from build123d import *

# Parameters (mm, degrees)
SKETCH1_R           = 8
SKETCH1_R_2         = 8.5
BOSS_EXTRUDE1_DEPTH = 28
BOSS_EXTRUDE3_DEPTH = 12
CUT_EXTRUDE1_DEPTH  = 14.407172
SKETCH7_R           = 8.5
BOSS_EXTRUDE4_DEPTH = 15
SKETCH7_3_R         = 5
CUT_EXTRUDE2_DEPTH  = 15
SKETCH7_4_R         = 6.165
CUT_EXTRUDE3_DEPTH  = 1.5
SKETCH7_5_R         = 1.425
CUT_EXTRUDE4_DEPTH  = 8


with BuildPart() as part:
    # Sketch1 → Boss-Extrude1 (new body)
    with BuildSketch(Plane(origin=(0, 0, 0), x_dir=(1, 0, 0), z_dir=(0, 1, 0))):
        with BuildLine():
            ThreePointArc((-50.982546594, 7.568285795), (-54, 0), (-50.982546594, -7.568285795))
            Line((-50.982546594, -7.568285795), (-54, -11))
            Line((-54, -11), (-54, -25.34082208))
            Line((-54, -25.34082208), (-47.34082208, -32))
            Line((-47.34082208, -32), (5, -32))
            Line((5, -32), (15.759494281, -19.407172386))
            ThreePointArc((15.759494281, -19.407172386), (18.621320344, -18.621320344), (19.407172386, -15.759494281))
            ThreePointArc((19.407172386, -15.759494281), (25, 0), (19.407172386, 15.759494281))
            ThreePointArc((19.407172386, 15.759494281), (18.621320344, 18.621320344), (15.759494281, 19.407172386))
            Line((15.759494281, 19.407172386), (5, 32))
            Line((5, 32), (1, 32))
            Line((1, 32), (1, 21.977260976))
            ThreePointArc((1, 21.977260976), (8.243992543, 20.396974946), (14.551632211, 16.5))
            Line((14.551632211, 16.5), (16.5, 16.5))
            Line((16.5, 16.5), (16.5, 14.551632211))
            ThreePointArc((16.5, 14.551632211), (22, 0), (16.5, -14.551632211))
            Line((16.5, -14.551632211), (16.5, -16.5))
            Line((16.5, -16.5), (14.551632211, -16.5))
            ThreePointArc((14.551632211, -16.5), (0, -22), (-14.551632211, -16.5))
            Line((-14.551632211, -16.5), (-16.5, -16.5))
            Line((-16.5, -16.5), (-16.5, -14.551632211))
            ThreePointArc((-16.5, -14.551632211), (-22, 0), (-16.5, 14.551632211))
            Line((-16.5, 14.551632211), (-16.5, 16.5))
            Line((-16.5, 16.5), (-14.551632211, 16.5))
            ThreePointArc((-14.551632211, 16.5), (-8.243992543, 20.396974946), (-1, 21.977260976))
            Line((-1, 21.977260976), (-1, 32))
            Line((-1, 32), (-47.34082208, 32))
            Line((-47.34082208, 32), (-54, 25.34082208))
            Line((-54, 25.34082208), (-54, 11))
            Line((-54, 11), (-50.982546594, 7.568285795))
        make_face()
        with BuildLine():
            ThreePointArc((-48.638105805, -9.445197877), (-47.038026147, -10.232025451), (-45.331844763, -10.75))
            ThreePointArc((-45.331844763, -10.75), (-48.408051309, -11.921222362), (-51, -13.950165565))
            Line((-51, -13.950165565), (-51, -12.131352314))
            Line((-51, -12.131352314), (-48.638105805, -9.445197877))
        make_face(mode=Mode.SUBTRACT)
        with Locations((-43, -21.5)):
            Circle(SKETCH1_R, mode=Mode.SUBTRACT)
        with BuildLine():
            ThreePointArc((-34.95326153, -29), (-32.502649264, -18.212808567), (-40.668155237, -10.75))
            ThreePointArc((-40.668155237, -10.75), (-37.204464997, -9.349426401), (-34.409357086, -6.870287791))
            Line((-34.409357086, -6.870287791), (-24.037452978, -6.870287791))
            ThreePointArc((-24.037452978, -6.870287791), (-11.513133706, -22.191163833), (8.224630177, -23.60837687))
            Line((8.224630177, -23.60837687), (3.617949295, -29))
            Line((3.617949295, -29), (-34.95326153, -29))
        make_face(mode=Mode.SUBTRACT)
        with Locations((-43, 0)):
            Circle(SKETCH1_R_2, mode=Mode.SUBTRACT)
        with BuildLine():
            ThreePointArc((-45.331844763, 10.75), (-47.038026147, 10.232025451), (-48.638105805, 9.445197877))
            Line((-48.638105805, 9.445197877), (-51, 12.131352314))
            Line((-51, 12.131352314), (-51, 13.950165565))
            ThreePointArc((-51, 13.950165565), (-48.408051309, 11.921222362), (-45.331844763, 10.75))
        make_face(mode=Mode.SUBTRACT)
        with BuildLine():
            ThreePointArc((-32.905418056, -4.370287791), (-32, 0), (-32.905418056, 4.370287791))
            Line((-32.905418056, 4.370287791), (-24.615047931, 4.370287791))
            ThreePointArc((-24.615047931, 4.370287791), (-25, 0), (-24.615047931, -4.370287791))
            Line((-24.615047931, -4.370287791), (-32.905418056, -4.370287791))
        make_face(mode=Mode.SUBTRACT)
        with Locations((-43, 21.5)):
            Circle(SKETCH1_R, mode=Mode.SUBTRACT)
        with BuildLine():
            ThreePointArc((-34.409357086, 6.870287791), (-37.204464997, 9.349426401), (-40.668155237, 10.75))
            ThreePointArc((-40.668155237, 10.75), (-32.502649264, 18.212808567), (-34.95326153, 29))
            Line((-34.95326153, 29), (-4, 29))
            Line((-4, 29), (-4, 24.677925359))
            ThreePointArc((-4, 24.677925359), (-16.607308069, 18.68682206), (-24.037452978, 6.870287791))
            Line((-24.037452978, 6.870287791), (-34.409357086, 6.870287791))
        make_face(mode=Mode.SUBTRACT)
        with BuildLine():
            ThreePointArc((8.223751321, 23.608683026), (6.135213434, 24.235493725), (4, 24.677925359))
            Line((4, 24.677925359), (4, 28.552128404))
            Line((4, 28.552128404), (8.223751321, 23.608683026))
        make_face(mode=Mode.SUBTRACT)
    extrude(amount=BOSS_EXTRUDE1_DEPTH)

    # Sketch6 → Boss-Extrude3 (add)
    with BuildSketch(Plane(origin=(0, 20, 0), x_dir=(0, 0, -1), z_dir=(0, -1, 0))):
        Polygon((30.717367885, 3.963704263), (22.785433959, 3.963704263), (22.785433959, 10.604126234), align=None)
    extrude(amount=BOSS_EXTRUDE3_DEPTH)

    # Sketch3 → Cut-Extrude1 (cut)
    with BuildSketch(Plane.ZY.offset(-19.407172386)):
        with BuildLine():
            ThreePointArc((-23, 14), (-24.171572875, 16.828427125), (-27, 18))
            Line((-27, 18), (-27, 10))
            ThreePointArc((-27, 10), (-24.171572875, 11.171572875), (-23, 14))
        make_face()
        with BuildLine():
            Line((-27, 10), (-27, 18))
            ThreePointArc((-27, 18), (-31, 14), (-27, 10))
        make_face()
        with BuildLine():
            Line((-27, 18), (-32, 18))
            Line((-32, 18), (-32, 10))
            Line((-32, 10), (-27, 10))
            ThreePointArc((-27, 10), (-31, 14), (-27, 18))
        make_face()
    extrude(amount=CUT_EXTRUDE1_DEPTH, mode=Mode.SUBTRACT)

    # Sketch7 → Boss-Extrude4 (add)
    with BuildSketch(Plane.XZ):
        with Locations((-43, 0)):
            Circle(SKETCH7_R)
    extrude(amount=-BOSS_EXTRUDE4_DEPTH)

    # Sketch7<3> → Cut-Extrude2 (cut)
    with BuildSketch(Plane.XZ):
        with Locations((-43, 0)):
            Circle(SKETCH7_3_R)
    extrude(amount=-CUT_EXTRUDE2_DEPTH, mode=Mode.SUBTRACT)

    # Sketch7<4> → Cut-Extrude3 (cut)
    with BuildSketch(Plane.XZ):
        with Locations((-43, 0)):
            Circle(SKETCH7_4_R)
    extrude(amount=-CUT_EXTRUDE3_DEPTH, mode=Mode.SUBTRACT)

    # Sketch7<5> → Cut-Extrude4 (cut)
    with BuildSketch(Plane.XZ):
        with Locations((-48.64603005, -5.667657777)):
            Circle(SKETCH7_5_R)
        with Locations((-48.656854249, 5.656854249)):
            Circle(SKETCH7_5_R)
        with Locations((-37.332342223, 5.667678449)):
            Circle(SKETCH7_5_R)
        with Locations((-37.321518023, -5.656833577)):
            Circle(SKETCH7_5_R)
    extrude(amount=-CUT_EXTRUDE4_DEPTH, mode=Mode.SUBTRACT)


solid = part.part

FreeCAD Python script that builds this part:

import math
import FreeCAD as App
import Part
import Sketcher
from FreeCAD import Vector
Q = App.Units.Quantity

doc = App.newDocument("Part")
body = doc.addObject("PartDesign::Body", "Body")

sketch1 = body.newObject("Sketcher::SketchObject", "Sketch")
sketch1.AttachmentSupport = (doc.getObject("XZ_Plane"), [""])
sketch1.MapMode = "FlatFace"
sketch1.addGeometry([
    Part.ArcOfCircle(Part.Circle(Vector(-43, 0, 0), Vector(0, 0, 1), 11), math.radians(137), math.radians(223)),
    Part.LineSegment(Vector(-51, 7.6, 0), Vector(-54, 11, 0)),
    Part.LineSegment(Vector(-54, 11, 0), Vector(-54, 25.3, 0)),
    Part.LineSegment(Vector(-54, 25.3, 0), Vector(-47.3, 32, 0)),
    Part.LineSegment(Vector(-47.3, 32, 0), Vector(5, 32, 0)),
    Part.LineSegment(Vector(5, 32, 0), Vector(15.8, 19.4, 0)),
    Part.ArcOfCircle(Part.Circle(Vector(16.5, 16.5, 0), Vector(0, 0, 1), 3), math.radians(-14), math.radians(104)),
    Part.ArcOfCircle(Part.Circle(Vector(0, 0, 0), Vector(0, 0, 1), 25), math.radians(-39), math.radians(39)),
    Part.ArcOfCircle(Part.Circle(Vector(16.5, -16.5, 0), Vector(0, 0, 1), 3), math.radians(-104), math.radians(14)),
    Part.LineSegment(Vector(15.8, -19.4, 0), Vector(5, -32, 0)),
    Part.LineSegment(Vector(5, -32, 0), Vector(1, -32, 0)),
    Part.LineSegment(Vector(1, -32, 0), Vector(1, -22, 0)),
    Part.ArcOfCircle(Part.Circle(Vector(0, 0, 0), Vector(0, 0, 1), 22), math.radians(-87), math.radians(-49)),
    Part.LineSegment(Vector(14.6, -16.5, 0), Vector(16.5, -16.5, 0)),
    Part.LineSegment(Vector(16.5, -16.5, 0), Vector(16.5, -14.6, 0)),
    Part.ArcOfCircle(Part.Circle(Vector(0, 0, 0), Vector(0, 0, 1), 22), math.radians(-41), math.radians(41)),
    Part.LineSegment(Vector(16.5, 14.6, 0), Vector(16.5, 16.5, 0)),
    Part.LineSegment(Vector(16.5, 16.5, 0), Vector(14.6, 16.5, 0)),
    Part.ArcOfCircle(Part.Circle(Vector(0, 0, 0), Vector(0, 0, 1), 22), math.radians(49), math.radians(131)),
    Part.LineSegment(Vector(-14.6, 16.5, 0), Vector(-16.5, 16.5, 0)),
    Part.LineSegment(Vector(-16.5, 16.5, 0), Vector(-16.5, 14.6, 0)),
    Part.ArcOfCircle(Part.Circle(Vector(0, 0, 0), Vector(0, 0, 1), 22), math.radians(139), math.radians(221)),
    Part.LineSegment(Vector(-16.5, -14.6, 0), Vector(-16.5, -16.5, 0)),
    Part.LineSegment(Vector(-16.5, -16.5, 0), Vector(-14.6, -16.5, 0)),
    Part.ArcOfCircle(Part.Circle(Vector(0, 0, 0), Vector(0, 0, 1), 22), math.radians(-131), math.radians(-93)),
    Part.LineSegment(Vector(-1, -22, 0), Vector(-1, -32, 0)),
    Part.LineSegment(Vector(-1, -32, 0), Vector(-47.3, -32, 0)),
    Part.LineSegment(Vector(-47.3, -32, 0), Vector(-54, -25.3, 0)),
    Part.LineSegment(Vector(-54, -25.3, 0), Vector(-54, -11, 0)),
    Part.LineSegment(Vector(-54, -11, 0), Vector(-51, -7.6, 0)),
    Part.Circle(Vector(-43, 21.5, 0), Vector(0, 0, 1), 8),
    Part.LineSegment(Vector(-51, 12.1, 0), Vector(-48.6, 9.4, 0)),
    Part.ArcOfCircle(Part.Circle(Vector(-43, 0, 0), Vector(0, 0, 1), 11), math.radians(102.24), math.radians(120.83)),
    Part.ArcOfCircle(Part.Circle(Vector(-43, 21.5, 0), Vector(0, 0, 1), 11), math.radians(-137), math.radians(-102)),
    Part.LineSegment(Vector(-51, 14, 0), Vector(-51, 12.1, 0)),
    Part.LineSegment(Vector(3.6, 29, 0), Vector(-35, 29, 0)),
    Part.ArcOfCircle(Part.Circle(Vector(-43, 21.5, 0), Vector(0, 0, 1), 11), math.radians(-78), math.radians(43)),
    Part.ArcOfCircle(Part.Circle(Vector(-43, 0, 0), Vector(0, 0, 1), 11), math.radians(39), math.radians(78)),
    Part.LineSegment(Vector(-34.4, 6.9, 0), Vector(-24, 6.9, 0)),
    Part.ArcOfCircle(Part.Circle(Vector(0, 0, 0), Vector(0, 0, 1), 25), math.radians(71), math.radians(164)),
    Part.LineSegment(Vector(8.2, 23.6, 0), Vector(3.6, 29, 0)),
    Part.Circle(Vector(-43, 0, 0), Vector(0, 0, 1), 8.5),
    Part.ArcOfCircle(Part.Circle(Vector(-43, -21.5, 0), Vector(0, 0, 1), 11), math.radians(102), math.radians(137)),
    Part.ArcOfCircle(Part.Circle(Vector(-43, 0, 0), Vector(0, 0, 1), 11), math.radians(-120.83), math.radians(-102.24)),
    Part.LineSegment(Vector(-48.6, -9.4, 0), Vector(-51, -12.1, 0)),
    Part.LineSegment(Vector(-51, -12.1, 0), Vector(-51, -14, 0)),
    Part.LineSegment(Vector(-24.6, 4.4, 0), Vector(-32.9, 4.4, 0)),
    Part.ArcOfCircle(Part.Circle(Vector(-43, 0, 0), Vector(0, 0, 1), 11), math.radians(-23), math.radians(23)),
    Part.LineSegment(Vector(-32.9, -4.4, 0), Vector(-24.6, -4.4, 0)),
    Part.ArcOfCircle(Part.Circle(Vector(0, 0, 0), Vector(0, 0, 1), 25), math.radians(170), math.radians(190)),
    Part.Circle(Vector(-43, -21.5, 0), Vector(0, 0, 1), 8),
    Part.LineSegment(Vector(-24, -6.9, 0), Vector(-34.4, -6.9, 0)),
    Part.ArcOfCircle(Part.Circle(Vector(-43, 0, 0), Vector(0, 0, 1), 11), math.radians(-78), math.radians(-39)),
    Part.ArcOfCircle(Part.Circle(Vector(-43, -21.5, 0), Vector(0, 0, 1), 11), math.radians(-43), math.radians(78)),
    Part.LineSegment(Vector(-35, -29, 0), Vector(-4, -29, 0)),
    Part.LineSegment(Vector(-4, -29, 0), Vector(-4, -24.7, 0)),
    Part.ArcOfCircle(Part.Circle(Vector(0, 0, 0), Vector(0, 0, 1), 25), math.radians(-164), math.radians(-99)),
    Part.LineSegment(Vector(4, -28.6, 0), Vector(8.2, -23.6, 0)),
    Part.ArcOfCircle(Part.Circle(Vector(0, 0, 0), Vector(0, 0, 1), 25), math.radians(-80.79), math.radians(-70.79)),
    Part.LineSegment(Vector(4, -24.7, 0), Vector(4, -28.6, 0)),
], False)
sketch1.addConstraint([
    Sketcher.Constraint("Coincident", 0, 1, 1, 1),
    Sketcher.Constraint("Coincident", 1, 2, 2, 1),
    Sketcher.Constraint("Coincident", 2, 2, 3, 1),
    Sketcher.Constraint("Coincident", 3, 2, 4, 1),
    Sketcher.Constraint("Coincident", 4, 2, 5, 1),
    Sketcher.Constraint("Coincident", 5, 2, 6, 2),
    Sketcher.Constraint("Coincident", 6, 1, 7, 2),
    Sketcher.Constraint("Coincident", 7, 1, 8, 2),
    Sketcher.Constraint("Coincident", 8, 1, 9, 1),
    Sketcher.Constraint("Coincident", 9, 2, 10, 1),
    Sketcher.Constraint("Coincident", 10, 2, 11, 1),
    Sketcher.Constraint("Coincident", 11, 2, 12, 1),
    Sketcher.Constraint("Coincident", 12, 2, 13, 1),
    Sketcher.Constraint("Coincident", 13, 2, 14, 1),
    Sketcher.Constraint("Coincident", 14, 2, 15, 1),
    Sketcher.Constraint("Coincident", 15, 2, 16, 1),
    Sketcher.Constraint("Coincident", 16, 2, 17, 1),
    Sketcher.Constraint("Coincident", 17, 2, 18, 1),
    Sketcher.Constraint("Coincident", 18, 2, 19, 1),
    Sketcher.Constraint("Coincident", 19, 2, 20, 1),
    Sketcher.Constraint("Coincident", 20, 2, 21, 1),
    Sketcher.Constraint("Coincident", 21, 2, 22, 1),
    Sketcher.Constraint("Coincident", 22, 2, 23, 1),
    Sketcher.Constraint("Coincident", 23, 2, 24, 1),
    Sketcher.Constraint("Coincident", 24, 2, 25, 1),
    Sketcher.Constraint("Coincident", 25, 2, 26, 1),
    Sketcher.Constraint("Coincident", 26, 2, 27, 1),
    Sketcher.Constraint("Coincident", 27, 2, 28, 1),
    Sketcher.Constraint("Coincident", 28, 2, 29, 1),
    Sketcher.Constraint("Coincident", 29, 2, 0, 2),
    Sketcher.Constraint("Coincident", 31, 2, 32, 2),
    Sketcher.Constraint("Coincident", 32, 1, 33, 2),
    Sketcher.Constraint("Coincident", 33, 1, 34, 1),
    Sketcher.Constraint("Coincident", 34, 2, 31, 1),
    Sketcher.Constraint("Coincident", 35, 2, 36, 2),
    Sketcher.Constraint("Coincident", 36, 1, 37, 2),
    Sketcher.Constraint("Coincident", 37, 1, 38, 1),
    Sketcher.Constraint("Coincident", 38, 2, 39, 2),
    Sketcher.Constraint("Coincident", 39, 1, 40, 1),
    Sketcher.Constraint("Coincident", 40, 2, 35, 1),
    Sketcher.Constraint("Coincident", 42, 1, 43, 2),
    Sketcher.Constraint("Coincident", 43, 1, 44, 1),
    Sketcher.Constraint("Coincident", 44, 2, 45, 1),
    Sketcher.Constraint("Coincident", 45, 2, 42, 2),
    Sketcher.Constraint("Coincident", 46, 2, 47, 2),
    Sketcher.Constraint("Coincident", 47, 1, 48, 1),
    Sketcher.Constraint("Coincident", 48, 2, 49, 2),
    Sketcher.Constraint("Coincident", 49, 1, 46, 1),
    Sketcher.Constraint("Coincident", 51, 2, 52, 2),
    Sketcher.Constraint("Coincident", 52, 1, 53, 2),
    Sketcher.Constraint("Coincident", 53, 1, 54, 1),
    Sketcher.Constraint("Coincident", 54, 2, 55, 1),
    Sketcher.Constraint("Coincident", 55, 2, 56, 2),
    Sketcher.Constraint("Coincident", 56, 1, 51, 1),
    Sketcher.Constraint("Coincident", 57, 2, 58, 2),
    Sketcher.Constraint("Coincident", 58, 1, 59, 1),
    Sketcher.Constraint("Coincident", 59, 2, 57, 1),
    Sketcher.Constraint("Vertical", 2),
    Sketcher.Constraint("Horizontal", 4),
    Sketcher.Constraint("Horizontal", 10),
    Sketcher.Constraint("Vertical", 11),
    Sketcher.Constraint("Horizontal", 13),
    Sketcher.Constraint("Vertical", 14),
    Sketcher.Constraint("Vertical", 16),
    Sketcher.Constraint("Horizontal", 17),
    Sketcher.Constraint("Horizontal", 19),
    Sketcher.Constraint("Vertical", 20),
    Sketcher.Constraint("Vertical", 22),
    Sketcher.Constraint("Horizontal", 23),
    Sketcher.Constraint("Vertical", 25),
    Sketcher.Constraint("Horizontal", 26),
    Sketcher.Constraint("Vertical", 28),
    Sketcher.Constraint("Vertical", 34),
    Sketcher.Constraint("Horizontal", 35),
    Sketcher.Constraint("Horizontal", 38),
    Sketcher.Constraint("Vertical", 45),
    Sketcher.Constraint("Horizontal", 46),
    Sketcher.Constraint("Horizontal", 48),
    Sketcher.Constraint("Horizontal", 51),
    Sketcher.Constraint("Horizontal", 54),
    Sketcher.Constraint("Vertical", 55),
    Sketcher.Constraint("Vertical", 59),
    Sketcher.Constraint("Coincident", 7, 3, -1, 1),
    Sketcher.Constraint("Coincident", 12, 3, -1, 1),
    Sketcher.Constraint("Coincident", 15, 3, -1, 1),
    Sketcher.Constraint("Coincident", 18, 3, -1, 1),
    Sketcher.Constraint("Coincident", 21, 3, -1, 1),
    Sketcher.Constraint("Coincident", 24, 3, -1, 1),
    Sketcher.Constraint("Coincident", 39, 3, -1, 1),
    Sketcher.Constraint("Coincident", 49, 3, -1, 1),
    Sketcher.Constraint("Coincident", 56, 3, -1, 1),
    Sketcher.Constraint("Coincident", 58, 3, -1, 1),
    Sketcher.Constraint("Coincident", 32, 3, 0, 3),
    Sketcher.Constraint("Coincident", 33, 3, 30, 3),
    Sketcher.Constraint("Coincident", 36, 3, 30, 3),
    Sketcher.Constraint("Coincident", 37, 3, 0, 3),
    Sketcher.Constraint("Coincident", 41, 3, 0, 3),
    Sketcher.Constraint("Coincident", 43, 3, 0, 3),
    Sketcher.Constraint("Coincident", 47, 3, 0, 3),
    Sketcher.Constraint("Coincident", 50, 3, 42, 3),
    Sketcher.Constraint("Coincident", 52, 3, 0, 3),
    Sketcher.Constraint("Coincident", 53, 3, 42, 3),
    Sketcher.Constraint("Coincident", 13, 2, 8, 3),
    Sketcher.Constraint("Coincident", 16, 2, 6, 3),
    Sketcher.Constraint("Equal", 6, 8),
    Sketcher.Constraint("Equal", 12, 15),
    Sketcher.Constraint("Equal", 15, 18),
    Sketcher.Constraint("Equal", 18, 21),
    Sketcher.Constraint("Equal", 21, 24),
    Sketcher.Constraint("Equal", 0, 32),
    Sketcher.Constraint("Equal", 32, 33),
    Sketcher.Constraint("Equal", 33, 36),
    Sketcher.Constraint("Equal", 36, 37),
    Sketcher.Constraint("Equal", 7, 39),
    Sketcher.Constraint("Equal", 37, 42),
    Sketcher.Constraint("Equal", 42, 43),
    Sketcher.Constraint("Equal", 43, 47),
    Sketcher.Constraint("Equal", 39, 49),
    Sketcher.Constraint("Equal", 30, 50),
    Sketcher.Constraint("Equal", 47, 52),
    Sketcher.Constraint("Equal", 52, 53),
    Sketcher.Constraint("Equal", 49, 56),
    Sketcher.Constraint("Equal", 56, 58),
    Sketcher.Constraint("Symmetric", 13, 2, 19, 2, -1, 1),
    Sketcher.Constraint("Symmetric", 16, 2, 22, 2, -1, 1),
    Sketcher.Constraint("Symmetric", 16, 2, 19, 2, -2),
    Sketcher.Constraint("Symmetric", 10, 2, 25, 2, -2),
    Sketcher.Constraint("Symmetric", 30, 3, 42, 3, -1),
    Sketcher.Constraint("Symmetric", 4, 2, 9, 2, -1),
    Sketcher.Constraint("Symmetric", 2, 2, 27, 2, -1),
    Sketcher.Constraint("Symmetric", 0, 1, 29, 2, -1),
    Sketcher.Constraint("Symmetric", 34, 2, 44, 2, -1),
    Sketcher.Constraint("Perpendicular", 3, 27),
    Sketcher.Constraint("Parallel", 1, 31),
    Sketcher.Constraint("Parallel", 5, 40),
    Sketcher.Constraint("Parallel", 29, 44),
    Sketcher.Constraint("Parallel", 9, 57),
    Sketcher.Constraint("Horizontal", 32, 1, 36, 1),
    Sketcher.Constraint("Horizontal", 55, 2, 58, 1),
    Sketcher.Constraint("Vertical", 5, 2, 8, 1),
    Sketcher.Constraint("Vertical", 3, 2, 26, 2),
    Sketcher.Constraint("Vertical", 31, 2, 43, 1),
    Sketcher.Constraint("Vertical", 46, 2, 47, 1),
    Sketcher.Constraint("Vertical", 37, 1, 51, 2),
    Sketcher.Constraint("Vertical", 35, 2, 53, 1),
    Sketcher.Constraint("Equal", 23, 14),
    Sketcher.Constraint("Diameter", 30, Q("16 mm")),
    Sketcher.Constraint("Diameter", 41, Q("17 mm")),
    Sketcher.Constraint("Radius", 0, Q("11 mm")),
    Sketcher.Constraint("Radius", 6, Q("3 mm")),
    Sketcher.Constraint("Radius", 7, Q("25 mm")),
    Sketcher.Constraint("Radius", 12, Q("22 mm")),
    Sketcher.Constraint("DistanceX", 10, 2, 10, 1, Q("4 mm")),
    Sketcher.Constraint("DistanceX", 0, 3, -1, 1, Q("43 mm")),
    Sketcher.Constraint("DistanceX", 1, 2, -1, 1, Q("54 mm")),
    Sketcher.Constraint("DistanceY", -1, 1, 1, 2, Q("11 mm")),
    Sketcher.Constraint("DistanceY", -1, 1, 3, 2, Q("32 mm")),
    Sketcher.Constraint("DistanceX", -1, 1, 4, 2, Q("5 mm")),
    Sketcher.Constraint("DistanceX", 33, 1, -1, 1, Q("51 mm")),
    Sketcher.Constraint("DistanceY", -1, 1, 35, 2, Q("29 mm")),
    Sketcher.Constraint("DistanceX", 54, 2, -1, 1, Q("4 mm")),
    Sketcher.Constraint("DistanceX", -1, 1, 6, 3, Q("16.5 mm")),
    Sketcher.Constraint("DistanceY", -1, 1, 30, 3, Q("21.5 mm")),
    Sketcher.Constraint("Distance", 3, Q("9.4175 mm")),
    Sketcher.Constraint("DistanceX", 35, 2, 35, 1, Q("38.571211 mm")),
    Sketcher.Constraint("DistanceX", 46, 2, 46, 1, Q("8.29037 mm")),
    Sketcher.Constraint("Distance", 1, Q("4.569649 mm")),
    Sketcher.Constraint("DistanceX", 38, 1, 38, 2, Q("10.371904 mm")),
    Sketcher.Constraint("DistanceY", 34, 2, 34, 1, Q("1.818813 mm")),
    Sketcher.Constraint("DistanceY", 59, 2, 59, 1, Q("3.874203 mm")),
    Sketcher.Constraint("DistanceX", -1, 1, 39, 1, Q("8.22463 mm")),
])
pad1 = body.newObject("PartDesign::Pad", "Pad")
pad1.Profile = sketch1
pad1.Length = 28
pad1.Reversed = True

sketch2 = body.newObject("Sketcher::SketchObject", "Sketch001")
sketch2.AttachmentSupport = (doc.getObject("XZ_Plane"), [""])
sketch2.MapMode = "FlatFace"
sketch2.AttachmentOffset = App.Placement(Vector(0, 0, -20), App.Rotation())
sketch2.addGeometry([
    Part.LineSegment(Vector(4, -23, 0), Vector(4, -31, 0)),
    Part.LineSegment(Vector(4, -31, 0), Vector(11, -23, 0)),
    Part.LineSegment(Vector(11, -23, 0), Vector(4, -23, 0)),
], False)
sketch2.addConstraint([
    Sketcher.Constraint("Coincident", 0, 2, 1, 1),
    Sketcher.Constraint("Coincident", 1, 2, 2, 1),
    Sketcher.Constraint("Coincident", 2, 2, 0, 1),
    Sketcher.Constraint("Vertical", 0),
    Sketcher.Constraint("Horizontal", 2),
    Sketcher.Constraint("Distance", 1, Q("10.344601 mm")),
    Sketcher.Constraint("DistanceX", 2, 2, 2, 1, Q("6.640422 mm")),
    Sketcher.Constraint("DistanceX", -1, 1, 0, 2, Q("3.963704 mm")),
    Sketcher.Constraint("DistanceY", 0, 2, -1, 1, Q("30.717368 mm")),
])
pad2 = body.newObject("PartDesign::Pad", "Pad001")
pad2.Profile = sketch2
pad2.Length = 12

sketch3 = body.newObject("Sketcher::SketchObject", "Sketch002")
sketch3.AttachmentSupport = (doc.getObject("YZ_Plane"), [""])
sketch3.MapMode = "FlatFace"
sketch3.AttachmentOffset = App.Placement(Vector(0, 0, 19.407172), App.Rotation())
sketch3.addGeometry([
    Part.ArcOfCircle(Part.Circle(Vector(14, -27, 0), Vector(0, 0, 1), 4), math.radians(0), math.radians(90)),
    Part.LineSegment(Vector(18, -27, 0), Vector(18, -32, 0)),
    Part.LineSegment(Vector(18, -32, 0), Vector(10, -32, 0)),
    Part.LineSegment(Vector(10, -32, 0), Vector(10, -27, 0)),
    Part.ArcOfCircle(Part.Circle(Vector(14, -27, 0), Vector(0, 0, 1), 4), math.radians(90), math.radians(180)),
], False)
sketch3.addConstraint([
    Sketcher.Constraint("Tangent", 0, 1, 1, 1),
    Sketcher.Constraint("Coincident", 1, 2, 2, 1),
    Sketcher.Constraint("Coincident", 2, 2, 3, 1),
    Sketcher.Constraint("Tangent", 3, 2, 4, 2),
    Sketcher.Constraint("Tangent", 4, 1, 0, 2),
    Sketcher.Constraint("Vertical", 1),
    Sketcher.Constraint("Horizontal", 2),
    Sketcher.Constraint("Vertical", 3),
    Sketcher.Constraint("Equal", 0, 4),
    Sketcher.Constraint("Vertical", 0, 3, 4, 1),
    Sketcher.Constraint("Radius", 0, Q("4 mm")),
    Sketcher.Constraint("DistanceY", 1, 2, 1, 1, Q("5 mm")),
    Sketcher.Constraint("DistanceX", -1, 1, 0, 3, Q("14 mm")),
    Sketcher.Constraint("DistanceY", 0, 3, -1, 1, Q("27 mm")),
])
pocket1 = body.newObject("PartDesign::Pocket", "Pocket")
pocket1.Profile = sketch3
pocket1.Length = 14.407172

sketch4 = body.newObject("Sketcher::SketchObject", "Sketch003")
sketch4.AttachmentSupport = (doc.getObject("XZ_Plane"), [""])
sketch4.MapMode = "FlatFace"
sketch4.addGeometry(Part.Circle(Vector(-43, 0, 0), Vector(0, 0, 1), 8), False)
sketch4.addConstraint([
    Sketcher.Constraint("PointOnObject", 0, 3, -1),
    Sketcher.Constraint("Diameter", 0, Q("17 mm")),
    Sketcher.Constraint("DistanceX", 0, 3, -1, 1, Q("43 mm")),
])
pad3 = body.newObject("PartDesign::Pad", "Pad002")
pad3.Profile = sketch4
pad3.Length = 15
pad3.Reversed = True

sketch5 = body.newObject("Sketcher::SketchObject", "Sketch004")
sketch5.AttachmentSupport = (doc.getObject("XZ_Plane"), [""])
sketch5.MapMode = "FlatFace"
sketch5.addGeometry(Part.Circle(Vector(-43, 0, 0), Vector(0, 0, 1), 5), False)
sketch5.addConstraint([
    Sketcher.Constraint("PointOnObject", 0, 3, -1),
    Sketcher.Constraint("Diameter", 0, Q("10 mm")),
    Sketcher.Constraint("DistanceX", 0, 3, -1, 1, Q("43 mm")),
])
pocket2 = body.newObject("PartDesign::Pocket", "Pocket001")
pocket2.Profile = sketch5
pocket2.Length = 15

sketch6 = body.newObject("Sketcher::SketchObject", "Sketch005")
sketch6.AttachmentSupport = (doc.getObject("XZ_Plane"), [""])
sketch6.MapMode = "FlatFace"
sketch6.addGeometry(Part.Circle(Vector(-43, 0, 0), Vector(0, 0, 1), 6), False)
sketch6.addConstraint([
    Sketcher.Constraint("PointOnObject", 0, 3, -1),
    Sketcher.Constraint("Diameter", 0, Q("12.33 mm")),
    Sketcher.Constraint("DistanceX", 0, 3, -1, 1, Q("43 mm")),
])
pocket3 = body.newObject("PartDesign::Pocket", "Pocket002")
pocket3.Profile = sketch6
pocket3.Length = 1.5

sketch7 = body.newObject("Sketcher::SketchObject", "Sketch006")
sketch7.AttachmentSupport = (doc.getObject("XZ_Plane"), [""])
sketch7.MapMode = "FlatFace"
sketch7.addGeometry([
    Part.Circle(Vector(-48.6, -5.7, 0), Vector(0, 0, 1), 1.4),
    Part.Circle(Vector(-48.7, 5.7, 0), Vector(0, 0, 1), 1.4),
    Part.Circle(Vector(-37.3, 5.7, 0), Vector(0, 0, 1), 1.4),
    Part.Circle(Vector(-37.3, -5.7, 0), Vector(0, 0, 1), 1.4),
], False)
sketch7.addConstraint([
    Sketcher.Constraint("Equal", 0, 1),
    Sketcher.Constraint("Equal", 1, 2),
    Sketcher.Constraint("Equal", 2, 3),
    Sketcher.Constraint("Diameter", 0, Q("2.85 mm")),
    Sketcher.Constraint("DistanceX", 0, 3, -1, 1, Q("48.64603 mm")),
    Sketcher.Constraint("DistanceY", -1, 1, 2, 3, Q("5.667678 mm")),
    Sketcher.Constraint("DistanceX", 3, 3, -1, 1, Q("37.321518 mm")),
    Sketcher.Constraint("DistanceY", 0, 3, -1, 1, Q("5.667658 mm")),
    Sketcher.Constraint("DistanceX", 1, 3, -1, 1, Q("48.656854 mm")),
    Sketcher.Constraint("DistanceY", -1, 1, 1, 3, Q("5.656854 mm")),
    Sketcher.Constraint("DistanceX", 2, 3, -1, 1, Q("37.332342 mm")),
    Sketcher.Constraint("DistanceY", 3, 3, -1, 1, Q("5.656834 mm")),
])
pocket4 = body.newObject("PartDesign::Pocket", "Pocket003")
pocket4.Profile = sketch7
pocket4.Length = 8

doc.recompute()
